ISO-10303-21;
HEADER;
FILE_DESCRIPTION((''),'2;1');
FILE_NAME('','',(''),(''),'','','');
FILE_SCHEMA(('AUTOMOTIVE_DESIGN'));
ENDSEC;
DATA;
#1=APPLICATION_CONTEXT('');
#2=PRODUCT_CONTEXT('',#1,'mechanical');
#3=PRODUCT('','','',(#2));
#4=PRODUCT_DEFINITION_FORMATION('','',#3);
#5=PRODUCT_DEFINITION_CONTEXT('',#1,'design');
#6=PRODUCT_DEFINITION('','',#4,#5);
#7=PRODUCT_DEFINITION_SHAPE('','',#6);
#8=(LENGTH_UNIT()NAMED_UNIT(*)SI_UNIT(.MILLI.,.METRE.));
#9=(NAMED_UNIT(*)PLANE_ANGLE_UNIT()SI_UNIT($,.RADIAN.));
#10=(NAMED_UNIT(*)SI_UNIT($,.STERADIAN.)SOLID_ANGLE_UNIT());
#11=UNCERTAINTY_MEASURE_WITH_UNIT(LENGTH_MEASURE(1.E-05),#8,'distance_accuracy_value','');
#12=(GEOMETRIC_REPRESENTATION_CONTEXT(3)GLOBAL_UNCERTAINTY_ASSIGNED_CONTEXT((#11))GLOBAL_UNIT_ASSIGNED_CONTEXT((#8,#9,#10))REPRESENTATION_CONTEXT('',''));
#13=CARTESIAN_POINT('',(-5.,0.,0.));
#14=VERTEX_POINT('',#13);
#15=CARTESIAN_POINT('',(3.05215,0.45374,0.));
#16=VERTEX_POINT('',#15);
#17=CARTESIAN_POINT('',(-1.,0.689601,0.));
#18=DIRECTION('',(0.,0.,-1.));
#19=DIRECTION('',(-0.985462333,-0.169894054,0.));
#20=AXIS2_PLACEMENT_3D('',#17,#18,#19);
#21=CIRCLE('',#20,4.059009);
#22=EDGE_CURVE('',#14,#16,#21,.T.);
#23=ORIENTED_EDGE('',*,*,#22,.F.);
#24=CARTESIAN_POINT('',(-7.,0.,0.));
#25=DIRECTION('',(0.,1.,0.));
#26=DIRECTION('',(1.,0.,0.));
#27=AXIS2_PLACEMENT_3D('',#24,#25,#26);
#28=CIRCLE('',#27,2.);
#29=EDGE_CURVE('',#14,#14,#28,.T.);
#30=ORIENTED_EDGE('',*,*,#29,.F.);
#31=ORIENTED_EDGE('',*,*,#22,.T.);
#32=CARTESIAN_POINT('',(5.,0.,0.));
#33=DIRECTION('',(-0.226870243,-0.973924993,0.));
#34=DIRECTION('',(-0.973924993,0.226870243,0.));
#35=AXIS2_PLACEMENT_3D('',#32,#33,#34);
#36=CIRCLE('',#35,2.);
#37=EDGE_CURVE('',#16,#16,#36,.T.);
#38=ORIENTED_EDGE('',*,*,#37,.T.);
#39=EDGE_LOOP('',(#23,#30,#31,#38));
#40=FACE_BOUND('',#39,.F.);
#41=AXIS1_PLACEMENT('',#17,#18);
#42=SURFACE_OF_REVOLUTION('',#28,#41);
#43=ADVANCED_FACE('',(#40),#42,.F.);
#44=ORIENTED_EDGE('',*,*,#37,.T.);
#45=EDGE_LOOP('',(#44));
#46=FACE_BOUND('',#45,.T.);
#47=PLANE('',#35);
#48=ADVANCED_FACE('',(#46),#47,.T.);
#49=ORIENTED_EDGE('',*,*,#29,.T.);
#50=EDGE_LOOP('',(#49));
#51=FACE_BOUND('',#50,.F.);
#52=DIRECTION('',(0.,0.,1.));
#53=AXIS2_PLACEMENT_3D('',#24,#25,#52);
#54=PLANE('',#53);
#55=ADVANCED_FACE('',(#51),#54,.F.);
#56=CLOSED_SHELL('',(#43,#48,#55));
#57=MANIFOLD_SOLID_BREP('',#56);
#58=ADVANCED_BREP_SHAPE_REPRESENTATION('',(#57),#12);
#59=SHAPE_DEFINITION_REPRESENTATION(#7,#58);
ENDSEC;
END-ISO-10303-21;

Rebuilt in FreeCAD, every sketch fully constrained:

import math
import FreeCAD as App
import Part
import Sketcher
from FreeCAD import Vector

doc = App.newDocument("Part")
body = doc.addObject("PartDesign::Body", "Body")

# Sketch on XZ plane
sketch1 = body.newObject("Sketcher::SketchObject", "Sketch")
sketch1.AttachmentSupport = (doc.getObject("XZ_Plane"), [""])
sketch1.MapMode = "FlatFace"
sketch1.addGeometry(Part.Circle(Vector(-7, 0, 0), Vector(0, 0, 1), 2), False)
sketch1.addConstraint(Sketcher.Constraint("PointOnObject", 0, 3, -1))
sketch1.addConstraint(Sketcher.Constraint("Diameter", 0, 4.0))
sketch1.addConstraint(Sketcher.Constraint("DistanceX", 0, 3, -1, 1, 7.0))

# Sketch on XY plane
sketch2 = body.newObject("Sketcher::SketchObject", "Sketch001")
sketch2.AttachmentSupport = (doc.getObject("XY_Plane"), [""])
sketch2.MapMode = "FlatFace"
sketch2.addGeometry(Part.ArcOfCircle(Part.Circle(Vector(-1, 1, 0), Vector(0, 0, 1), 6), math.radians(-7), math.radians(187)), False)
sketch2.addConstraint(Sketcher.Constraint("PointOnObject", 0, 1, -1))
sketch2.addConstraint(Sketcher.Constraint("PointOnObject", 0, 2, -1))
sketch2.addConstraint(Sketcher.Constraint("DistanceX", 0, 3, -1, 1, 1.0))
sketch2.addConstraint(Sketcher.Constraint("DistanceX", -1, 1, 0, 1, 5.0))
sketch2.addConstraint(Sketcher.Constraint("Radius", 0, 6.039499))
doc.recompute()

additivepipe = body.newObject("PartDesign::AdditivePipe", "AdditivePipe")
additivepipe.Profile = sketch1
additivepipe.Spine = (sketch2, ["Edge1"])

doc.recompute()
